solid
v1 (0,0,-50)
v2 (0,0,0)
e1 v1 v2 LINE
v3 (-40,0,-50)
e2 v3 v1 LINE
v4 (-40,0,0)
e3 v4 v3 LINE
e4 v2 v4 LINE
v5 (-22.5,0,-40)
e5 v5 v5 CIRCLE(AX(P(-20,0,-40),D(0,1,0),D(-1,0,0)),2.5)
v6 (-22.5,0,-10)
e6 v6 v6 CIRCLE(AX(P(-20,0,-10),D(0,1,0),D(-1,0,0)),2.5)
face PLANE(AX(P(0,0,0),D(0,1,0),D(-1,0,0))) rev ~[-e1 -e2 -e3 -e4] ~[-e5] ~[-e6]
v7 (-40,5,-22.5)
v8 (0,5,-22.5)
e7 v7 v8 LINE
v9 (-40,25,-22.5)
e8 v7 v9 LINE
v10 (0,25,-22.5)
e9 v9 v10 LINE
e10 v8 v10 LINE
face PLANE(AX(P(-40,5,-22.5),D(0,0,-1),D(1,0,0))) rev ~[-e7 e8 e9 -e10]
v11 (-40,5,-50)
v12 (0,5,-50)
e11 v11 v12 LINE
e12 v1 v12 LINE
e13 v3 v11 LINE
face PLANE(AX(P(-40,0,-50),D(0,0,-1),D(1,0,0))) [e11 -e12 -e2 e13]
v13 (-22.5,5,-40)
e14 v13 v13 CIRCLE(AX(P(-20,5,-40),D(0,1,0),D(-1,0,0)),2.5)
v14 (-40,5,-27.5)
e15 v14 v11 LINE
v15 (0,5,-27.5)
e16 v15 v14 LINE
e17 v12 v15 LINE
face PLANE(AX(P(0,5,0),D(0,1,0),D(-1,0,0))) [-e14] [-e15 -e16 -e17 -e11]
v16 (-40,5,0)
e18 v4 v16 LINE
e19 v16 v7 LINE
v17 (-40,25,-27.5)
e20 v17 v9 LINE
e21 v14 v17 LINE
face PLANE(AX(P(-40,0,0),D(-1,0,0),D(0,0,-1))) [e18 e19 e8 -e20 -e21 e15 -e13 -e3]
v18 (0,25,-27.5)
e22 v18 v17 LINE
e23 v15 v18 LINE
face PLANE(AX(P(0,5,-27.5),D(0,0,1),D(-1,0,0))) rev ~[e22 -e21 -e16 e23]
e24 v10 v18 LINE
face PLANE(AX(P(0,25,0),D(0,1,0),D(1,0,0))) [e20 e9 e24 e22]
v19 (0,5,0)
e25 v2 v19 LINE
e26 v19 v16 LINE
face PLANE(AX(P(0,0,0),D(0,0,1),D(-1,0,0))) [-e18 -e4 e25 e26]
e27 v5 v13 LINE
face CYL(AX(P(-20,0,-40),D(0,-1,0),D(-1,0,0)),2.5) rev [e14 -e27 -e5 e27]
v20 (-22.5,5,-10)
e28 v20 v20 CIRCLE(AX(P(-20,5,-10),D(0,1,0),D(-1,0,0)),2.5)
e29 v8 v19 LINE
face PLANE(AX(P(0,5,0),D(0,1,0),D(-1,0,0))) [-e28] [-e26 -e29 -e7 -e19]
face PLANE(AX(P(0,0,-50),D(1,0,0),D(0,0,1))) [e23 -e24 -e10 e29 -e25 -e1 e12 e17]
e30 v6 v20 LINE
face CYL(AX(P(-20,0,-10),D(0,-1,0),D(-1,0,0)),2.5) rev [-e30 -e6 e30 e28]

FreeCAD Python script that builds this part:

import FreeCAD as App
import Part
import Sketcher
from FreeCAD import Vector
Q = App.Units.Quantity

doc = App.newDocument("Part")
body = doc.addObject("PartDesign::Body", "Body")

sketch1 = body.newObject("Sketcher::SketchObject", "Sketch")
sketch1.AttachmentSupport = (doc.getObject("XZ_Plane"), [""])
sketch1.MapMode = "FlatFace"
sketch1.addGeometry([
    Part.LineSegment(Vector(-40, 0, 0), Vector(0, 0, 0)),
    Part.LineSegment(Vector(0, 0, 0), Vector(0, -50, 0)),
    Part.LineSegment(Vector(0, -50, 0), Vector(-40, -50, 0)),
    Part.LineSegment(Vector(-40, -50, 0), Vector(-40, 0, 0)),
    Part.Circle(Vector(-20, -40, 0), Vector(0, 0, 1), 2.5),
    Part.Circle(Vector(-20, -10, 0), Vector(0, 0, 1), 2.5),
], False)
sketch1.addConstraint([
    Sketcher.Constraint("Coincident", 0, 2, 1, 1),
    Sketcher.Constraint("Coincident", 1, 2, 2, 1),
    Sketcher.Constraint("Coincident", 2, 2, 3, 1),
    Sketcher.Constraint("Coincident", 3, 2, 0, 1),
    Sketcher.Constraint("Horizontal", 0),
    Sketcher.Constraint("Vertical", 1),
    Sketcher.Constraint("Horizontal", 2),
    Sketcher.Constraint("Vertical", 3),
    Sketcher.Constraint("Coincident", 0, 2, -1, 1),
    Sketcher.Constraint("Equal", 4, 5),
    Sketcher.Constraint("Vertical", 4, 3, 5, 3),
    Sketcher.Constraint("Diameter", 4, Q("5 mm")),
    Sketcher.Constraint("DistanceX", 0, 1, 0, 2, Q("40 mm")),
    Sketcher.Constraint("DistanceY", 1, 2, 1, 1, Q("50 mm")),
    Sketcher.Constraint("DistanceX", 4, 3, -1, 1, Q("20 mm")),
    Sketcher.Constraint("DistanceY", 4, 3, -1, 1, Q("40 mm")),
    Sketcher.Constraint("DistanceY", 5, 3, -1, 1, Q("10 mm")),
])
pad1 = body.newObject("PartDesign::Pad", "Pad")
pad1.Profile = sketch1
pad1.Length = 5
pad1.Reversed = True

sketch2 = body.newObject("Sketcher::SketchObject", "Sketch001")
sketch2.AttachmentSupport = (doc.getObject("XZ_Plane"), [""])
sketch2.MapMode = "FlatFace"
sketch2.AttachmentOffset = App.Placement(Vector(0, 0, -5), App.Rotation())
sketch2.addGeometry([
    Part.LineSegment(Vector(0, -27.5, 0), Vector(-40, -27.5, 0)),
    Part.LineSegment(Vector(-40, -27.5, 0), Vector(-40, -22.5, 0)),
    Part.LineSegment(Vector(-40, -22.5, 0), Vector(0, -22.5, 0)),
    Part.LineSegment(Vector(0, -22.5, 0), Vector(0, -27.5, 0)),
], False)
sketch2.addConstraint([
    Sketcher.Constraint("Coincident", 0, 2, 1, 1),
    Sketcher.Constraint("Coincident", 1, 2, 2, 1),
    Sketcher.Constraint("Coincident", 2, 2, 3, 1),
    Sketcher.Constraint("Coincident", 3, 2, 0, 1),
    Sketcher.Constraint("Horizontal", 0),
    Sketcher.Constraint("Vertical", 1),
    Sketcher.Constraint("Horizontal", 2),
    Sketcher.Constraint("Vertical", 3),
    Sketcher.Constraint("PointOnObject", 2, 2, -2),
    Sketcher.Constraint("DistanceY", 1, 1, 1, 2, Q("5 mm")),
    Sketcher.Constraint("DistanceY", 1, 2, -1, 1, Q("22.5 mm")),
    Sketcher.Constraint("DistanceX", 0, 2, 0, 1, Q("40 mm")),
])
pad2 = body.newObject("PartDesign::Pad", "Pad001")
pad2.Profile = sketch2
pad2.Length = 20
pad2.Reversed = True

doc.recompute()
